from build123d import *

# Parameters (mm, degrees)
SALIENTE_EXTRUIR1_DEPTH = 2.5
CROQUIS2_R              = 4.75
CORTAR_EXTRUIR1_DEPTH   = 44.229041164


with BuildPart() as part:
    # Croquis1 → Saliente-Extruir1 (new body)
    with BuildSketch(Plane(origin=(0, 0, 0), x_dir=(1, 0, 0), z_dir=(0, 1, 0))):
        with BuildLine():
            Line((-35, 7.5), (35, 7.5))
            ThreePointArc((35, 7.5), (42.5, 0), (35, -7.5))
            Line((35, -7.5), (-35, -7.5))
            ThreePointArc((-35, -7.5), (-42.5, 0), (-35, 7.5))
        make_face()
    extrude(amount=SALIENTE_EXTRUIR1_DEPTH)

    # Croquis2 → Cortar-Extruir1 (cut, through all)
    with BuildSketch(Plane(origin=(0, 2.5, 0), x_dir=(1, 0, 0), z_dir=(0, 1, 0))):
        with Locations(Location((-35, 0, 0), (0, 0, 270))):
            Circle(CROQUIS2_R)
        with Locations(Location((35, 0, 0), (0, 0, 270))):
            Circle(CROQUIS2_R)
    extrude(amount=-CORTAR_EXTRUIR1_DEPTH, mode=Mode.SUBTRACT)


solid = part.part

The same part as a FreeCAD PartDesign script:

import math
import FreeCAD as App
import Part
import Sketcher
from FreeCAD import Vector
Q = App.Units.Quantity

doc = App.newDocument("Part")
body = doc.addObject("PartDesign::Body", "Body")

# Sketch on XZ plane
sketch1 = body.newObject("Sketcher::SketchObject", "Sketch")
sketch1.AttachmentSupport = (doc.getObject("XZ_Plane"), [""])
sketch1.MapMode = "FlatFace"
sketch1.addGeometry([
    Part.LineSegment(Vector(35, -8, 0), Vector(-35, -8, 0)),
    Part.ArcOfCircle(Part.Circle(Vector(-35, 0, 0), Vector(0, 0, 1), 8), math.radians(90), math.radians(270)),
    Part.LineSegment(Vector(-35, 8, 0), Vector(35, 8, 0)),
    Part.ArcOfCircle(Part.Circle(Vector(35, 0, 0), Vector(0, 0, 1), 8), math.radians(-90), math.radians(90)),
], False)
sketch1.addConstraint([
    Sketcher.Constraint("Tangent", 0, 2, 1, 2),
    Sketcher.Constraint("Tangent", 1, 1, 2, 1),
    Sketcher.Constraint("Tangent", 2, 2, 3, 2),
    Sketcher.Constraint("Tangent", 3, 1, 0, 1),
    Sketcher.Constraint("Horizontal", 0),
    Sketcher.Constraint("Horizontal", 2),
    Sketcher.Constraint("Symmetric", 1, 3, 3, 3, -1, 1),
    Sketcher.Constraint("Radius", 1, Q("7.5 mm")),
    Sketcher.Constraint("DistanceX", 0, 2, 0, 1, Q("70 mm")),
])
pad1 = body.newObject("PartDesign::Pad", "Pad")
pad1.Profile = sketch1
pad1.Length = 2.5
pad1.Reversed = True

# Sketch on XZ plane
sketch2 = body.newObject("Sketcher::SketchObject", "Sketch001")
sketch2.AttachmentSupport = (doc.getObject("XZ_Plane"), [""])
sketch2.MapMode = "FlatFace"
sketch2.AttachmentOffset = App.Placement(Vector(0, 0, -2.5), App.Rotation())
sketch2.addGeometry([
    Part.Circle(Vector(-35, 0, 0), Vector(0, 0, 1), 4.8),
    Part.Circle(Vector(35, 0, 0), Vector(0, 0, 1), 4.8),
], False)
sketch2.addConstraint([
    Sketcher.Constraint("Equal", 0, 1),
    Sketcher.Constraint("Symmetric", 0, 3, 1, 3, -1, 1),
    Sketcher.Constraint("PointOnObject", 0, 3, -1),
    Sketcher.Constraint("Diameter", 0, Q("9.5 mm")),
    Sketcher.Constraint("DistanceX", 0, 3, -1, 1, Q("35 mm")),
])
pocket1 = body.newObject("PartDesign::Pocket", "Pocket")
pocket1.Profile = sketch2
pocket1.Type = "ThroughAll"
pocket1.Reversed = True

doc.recompute()
